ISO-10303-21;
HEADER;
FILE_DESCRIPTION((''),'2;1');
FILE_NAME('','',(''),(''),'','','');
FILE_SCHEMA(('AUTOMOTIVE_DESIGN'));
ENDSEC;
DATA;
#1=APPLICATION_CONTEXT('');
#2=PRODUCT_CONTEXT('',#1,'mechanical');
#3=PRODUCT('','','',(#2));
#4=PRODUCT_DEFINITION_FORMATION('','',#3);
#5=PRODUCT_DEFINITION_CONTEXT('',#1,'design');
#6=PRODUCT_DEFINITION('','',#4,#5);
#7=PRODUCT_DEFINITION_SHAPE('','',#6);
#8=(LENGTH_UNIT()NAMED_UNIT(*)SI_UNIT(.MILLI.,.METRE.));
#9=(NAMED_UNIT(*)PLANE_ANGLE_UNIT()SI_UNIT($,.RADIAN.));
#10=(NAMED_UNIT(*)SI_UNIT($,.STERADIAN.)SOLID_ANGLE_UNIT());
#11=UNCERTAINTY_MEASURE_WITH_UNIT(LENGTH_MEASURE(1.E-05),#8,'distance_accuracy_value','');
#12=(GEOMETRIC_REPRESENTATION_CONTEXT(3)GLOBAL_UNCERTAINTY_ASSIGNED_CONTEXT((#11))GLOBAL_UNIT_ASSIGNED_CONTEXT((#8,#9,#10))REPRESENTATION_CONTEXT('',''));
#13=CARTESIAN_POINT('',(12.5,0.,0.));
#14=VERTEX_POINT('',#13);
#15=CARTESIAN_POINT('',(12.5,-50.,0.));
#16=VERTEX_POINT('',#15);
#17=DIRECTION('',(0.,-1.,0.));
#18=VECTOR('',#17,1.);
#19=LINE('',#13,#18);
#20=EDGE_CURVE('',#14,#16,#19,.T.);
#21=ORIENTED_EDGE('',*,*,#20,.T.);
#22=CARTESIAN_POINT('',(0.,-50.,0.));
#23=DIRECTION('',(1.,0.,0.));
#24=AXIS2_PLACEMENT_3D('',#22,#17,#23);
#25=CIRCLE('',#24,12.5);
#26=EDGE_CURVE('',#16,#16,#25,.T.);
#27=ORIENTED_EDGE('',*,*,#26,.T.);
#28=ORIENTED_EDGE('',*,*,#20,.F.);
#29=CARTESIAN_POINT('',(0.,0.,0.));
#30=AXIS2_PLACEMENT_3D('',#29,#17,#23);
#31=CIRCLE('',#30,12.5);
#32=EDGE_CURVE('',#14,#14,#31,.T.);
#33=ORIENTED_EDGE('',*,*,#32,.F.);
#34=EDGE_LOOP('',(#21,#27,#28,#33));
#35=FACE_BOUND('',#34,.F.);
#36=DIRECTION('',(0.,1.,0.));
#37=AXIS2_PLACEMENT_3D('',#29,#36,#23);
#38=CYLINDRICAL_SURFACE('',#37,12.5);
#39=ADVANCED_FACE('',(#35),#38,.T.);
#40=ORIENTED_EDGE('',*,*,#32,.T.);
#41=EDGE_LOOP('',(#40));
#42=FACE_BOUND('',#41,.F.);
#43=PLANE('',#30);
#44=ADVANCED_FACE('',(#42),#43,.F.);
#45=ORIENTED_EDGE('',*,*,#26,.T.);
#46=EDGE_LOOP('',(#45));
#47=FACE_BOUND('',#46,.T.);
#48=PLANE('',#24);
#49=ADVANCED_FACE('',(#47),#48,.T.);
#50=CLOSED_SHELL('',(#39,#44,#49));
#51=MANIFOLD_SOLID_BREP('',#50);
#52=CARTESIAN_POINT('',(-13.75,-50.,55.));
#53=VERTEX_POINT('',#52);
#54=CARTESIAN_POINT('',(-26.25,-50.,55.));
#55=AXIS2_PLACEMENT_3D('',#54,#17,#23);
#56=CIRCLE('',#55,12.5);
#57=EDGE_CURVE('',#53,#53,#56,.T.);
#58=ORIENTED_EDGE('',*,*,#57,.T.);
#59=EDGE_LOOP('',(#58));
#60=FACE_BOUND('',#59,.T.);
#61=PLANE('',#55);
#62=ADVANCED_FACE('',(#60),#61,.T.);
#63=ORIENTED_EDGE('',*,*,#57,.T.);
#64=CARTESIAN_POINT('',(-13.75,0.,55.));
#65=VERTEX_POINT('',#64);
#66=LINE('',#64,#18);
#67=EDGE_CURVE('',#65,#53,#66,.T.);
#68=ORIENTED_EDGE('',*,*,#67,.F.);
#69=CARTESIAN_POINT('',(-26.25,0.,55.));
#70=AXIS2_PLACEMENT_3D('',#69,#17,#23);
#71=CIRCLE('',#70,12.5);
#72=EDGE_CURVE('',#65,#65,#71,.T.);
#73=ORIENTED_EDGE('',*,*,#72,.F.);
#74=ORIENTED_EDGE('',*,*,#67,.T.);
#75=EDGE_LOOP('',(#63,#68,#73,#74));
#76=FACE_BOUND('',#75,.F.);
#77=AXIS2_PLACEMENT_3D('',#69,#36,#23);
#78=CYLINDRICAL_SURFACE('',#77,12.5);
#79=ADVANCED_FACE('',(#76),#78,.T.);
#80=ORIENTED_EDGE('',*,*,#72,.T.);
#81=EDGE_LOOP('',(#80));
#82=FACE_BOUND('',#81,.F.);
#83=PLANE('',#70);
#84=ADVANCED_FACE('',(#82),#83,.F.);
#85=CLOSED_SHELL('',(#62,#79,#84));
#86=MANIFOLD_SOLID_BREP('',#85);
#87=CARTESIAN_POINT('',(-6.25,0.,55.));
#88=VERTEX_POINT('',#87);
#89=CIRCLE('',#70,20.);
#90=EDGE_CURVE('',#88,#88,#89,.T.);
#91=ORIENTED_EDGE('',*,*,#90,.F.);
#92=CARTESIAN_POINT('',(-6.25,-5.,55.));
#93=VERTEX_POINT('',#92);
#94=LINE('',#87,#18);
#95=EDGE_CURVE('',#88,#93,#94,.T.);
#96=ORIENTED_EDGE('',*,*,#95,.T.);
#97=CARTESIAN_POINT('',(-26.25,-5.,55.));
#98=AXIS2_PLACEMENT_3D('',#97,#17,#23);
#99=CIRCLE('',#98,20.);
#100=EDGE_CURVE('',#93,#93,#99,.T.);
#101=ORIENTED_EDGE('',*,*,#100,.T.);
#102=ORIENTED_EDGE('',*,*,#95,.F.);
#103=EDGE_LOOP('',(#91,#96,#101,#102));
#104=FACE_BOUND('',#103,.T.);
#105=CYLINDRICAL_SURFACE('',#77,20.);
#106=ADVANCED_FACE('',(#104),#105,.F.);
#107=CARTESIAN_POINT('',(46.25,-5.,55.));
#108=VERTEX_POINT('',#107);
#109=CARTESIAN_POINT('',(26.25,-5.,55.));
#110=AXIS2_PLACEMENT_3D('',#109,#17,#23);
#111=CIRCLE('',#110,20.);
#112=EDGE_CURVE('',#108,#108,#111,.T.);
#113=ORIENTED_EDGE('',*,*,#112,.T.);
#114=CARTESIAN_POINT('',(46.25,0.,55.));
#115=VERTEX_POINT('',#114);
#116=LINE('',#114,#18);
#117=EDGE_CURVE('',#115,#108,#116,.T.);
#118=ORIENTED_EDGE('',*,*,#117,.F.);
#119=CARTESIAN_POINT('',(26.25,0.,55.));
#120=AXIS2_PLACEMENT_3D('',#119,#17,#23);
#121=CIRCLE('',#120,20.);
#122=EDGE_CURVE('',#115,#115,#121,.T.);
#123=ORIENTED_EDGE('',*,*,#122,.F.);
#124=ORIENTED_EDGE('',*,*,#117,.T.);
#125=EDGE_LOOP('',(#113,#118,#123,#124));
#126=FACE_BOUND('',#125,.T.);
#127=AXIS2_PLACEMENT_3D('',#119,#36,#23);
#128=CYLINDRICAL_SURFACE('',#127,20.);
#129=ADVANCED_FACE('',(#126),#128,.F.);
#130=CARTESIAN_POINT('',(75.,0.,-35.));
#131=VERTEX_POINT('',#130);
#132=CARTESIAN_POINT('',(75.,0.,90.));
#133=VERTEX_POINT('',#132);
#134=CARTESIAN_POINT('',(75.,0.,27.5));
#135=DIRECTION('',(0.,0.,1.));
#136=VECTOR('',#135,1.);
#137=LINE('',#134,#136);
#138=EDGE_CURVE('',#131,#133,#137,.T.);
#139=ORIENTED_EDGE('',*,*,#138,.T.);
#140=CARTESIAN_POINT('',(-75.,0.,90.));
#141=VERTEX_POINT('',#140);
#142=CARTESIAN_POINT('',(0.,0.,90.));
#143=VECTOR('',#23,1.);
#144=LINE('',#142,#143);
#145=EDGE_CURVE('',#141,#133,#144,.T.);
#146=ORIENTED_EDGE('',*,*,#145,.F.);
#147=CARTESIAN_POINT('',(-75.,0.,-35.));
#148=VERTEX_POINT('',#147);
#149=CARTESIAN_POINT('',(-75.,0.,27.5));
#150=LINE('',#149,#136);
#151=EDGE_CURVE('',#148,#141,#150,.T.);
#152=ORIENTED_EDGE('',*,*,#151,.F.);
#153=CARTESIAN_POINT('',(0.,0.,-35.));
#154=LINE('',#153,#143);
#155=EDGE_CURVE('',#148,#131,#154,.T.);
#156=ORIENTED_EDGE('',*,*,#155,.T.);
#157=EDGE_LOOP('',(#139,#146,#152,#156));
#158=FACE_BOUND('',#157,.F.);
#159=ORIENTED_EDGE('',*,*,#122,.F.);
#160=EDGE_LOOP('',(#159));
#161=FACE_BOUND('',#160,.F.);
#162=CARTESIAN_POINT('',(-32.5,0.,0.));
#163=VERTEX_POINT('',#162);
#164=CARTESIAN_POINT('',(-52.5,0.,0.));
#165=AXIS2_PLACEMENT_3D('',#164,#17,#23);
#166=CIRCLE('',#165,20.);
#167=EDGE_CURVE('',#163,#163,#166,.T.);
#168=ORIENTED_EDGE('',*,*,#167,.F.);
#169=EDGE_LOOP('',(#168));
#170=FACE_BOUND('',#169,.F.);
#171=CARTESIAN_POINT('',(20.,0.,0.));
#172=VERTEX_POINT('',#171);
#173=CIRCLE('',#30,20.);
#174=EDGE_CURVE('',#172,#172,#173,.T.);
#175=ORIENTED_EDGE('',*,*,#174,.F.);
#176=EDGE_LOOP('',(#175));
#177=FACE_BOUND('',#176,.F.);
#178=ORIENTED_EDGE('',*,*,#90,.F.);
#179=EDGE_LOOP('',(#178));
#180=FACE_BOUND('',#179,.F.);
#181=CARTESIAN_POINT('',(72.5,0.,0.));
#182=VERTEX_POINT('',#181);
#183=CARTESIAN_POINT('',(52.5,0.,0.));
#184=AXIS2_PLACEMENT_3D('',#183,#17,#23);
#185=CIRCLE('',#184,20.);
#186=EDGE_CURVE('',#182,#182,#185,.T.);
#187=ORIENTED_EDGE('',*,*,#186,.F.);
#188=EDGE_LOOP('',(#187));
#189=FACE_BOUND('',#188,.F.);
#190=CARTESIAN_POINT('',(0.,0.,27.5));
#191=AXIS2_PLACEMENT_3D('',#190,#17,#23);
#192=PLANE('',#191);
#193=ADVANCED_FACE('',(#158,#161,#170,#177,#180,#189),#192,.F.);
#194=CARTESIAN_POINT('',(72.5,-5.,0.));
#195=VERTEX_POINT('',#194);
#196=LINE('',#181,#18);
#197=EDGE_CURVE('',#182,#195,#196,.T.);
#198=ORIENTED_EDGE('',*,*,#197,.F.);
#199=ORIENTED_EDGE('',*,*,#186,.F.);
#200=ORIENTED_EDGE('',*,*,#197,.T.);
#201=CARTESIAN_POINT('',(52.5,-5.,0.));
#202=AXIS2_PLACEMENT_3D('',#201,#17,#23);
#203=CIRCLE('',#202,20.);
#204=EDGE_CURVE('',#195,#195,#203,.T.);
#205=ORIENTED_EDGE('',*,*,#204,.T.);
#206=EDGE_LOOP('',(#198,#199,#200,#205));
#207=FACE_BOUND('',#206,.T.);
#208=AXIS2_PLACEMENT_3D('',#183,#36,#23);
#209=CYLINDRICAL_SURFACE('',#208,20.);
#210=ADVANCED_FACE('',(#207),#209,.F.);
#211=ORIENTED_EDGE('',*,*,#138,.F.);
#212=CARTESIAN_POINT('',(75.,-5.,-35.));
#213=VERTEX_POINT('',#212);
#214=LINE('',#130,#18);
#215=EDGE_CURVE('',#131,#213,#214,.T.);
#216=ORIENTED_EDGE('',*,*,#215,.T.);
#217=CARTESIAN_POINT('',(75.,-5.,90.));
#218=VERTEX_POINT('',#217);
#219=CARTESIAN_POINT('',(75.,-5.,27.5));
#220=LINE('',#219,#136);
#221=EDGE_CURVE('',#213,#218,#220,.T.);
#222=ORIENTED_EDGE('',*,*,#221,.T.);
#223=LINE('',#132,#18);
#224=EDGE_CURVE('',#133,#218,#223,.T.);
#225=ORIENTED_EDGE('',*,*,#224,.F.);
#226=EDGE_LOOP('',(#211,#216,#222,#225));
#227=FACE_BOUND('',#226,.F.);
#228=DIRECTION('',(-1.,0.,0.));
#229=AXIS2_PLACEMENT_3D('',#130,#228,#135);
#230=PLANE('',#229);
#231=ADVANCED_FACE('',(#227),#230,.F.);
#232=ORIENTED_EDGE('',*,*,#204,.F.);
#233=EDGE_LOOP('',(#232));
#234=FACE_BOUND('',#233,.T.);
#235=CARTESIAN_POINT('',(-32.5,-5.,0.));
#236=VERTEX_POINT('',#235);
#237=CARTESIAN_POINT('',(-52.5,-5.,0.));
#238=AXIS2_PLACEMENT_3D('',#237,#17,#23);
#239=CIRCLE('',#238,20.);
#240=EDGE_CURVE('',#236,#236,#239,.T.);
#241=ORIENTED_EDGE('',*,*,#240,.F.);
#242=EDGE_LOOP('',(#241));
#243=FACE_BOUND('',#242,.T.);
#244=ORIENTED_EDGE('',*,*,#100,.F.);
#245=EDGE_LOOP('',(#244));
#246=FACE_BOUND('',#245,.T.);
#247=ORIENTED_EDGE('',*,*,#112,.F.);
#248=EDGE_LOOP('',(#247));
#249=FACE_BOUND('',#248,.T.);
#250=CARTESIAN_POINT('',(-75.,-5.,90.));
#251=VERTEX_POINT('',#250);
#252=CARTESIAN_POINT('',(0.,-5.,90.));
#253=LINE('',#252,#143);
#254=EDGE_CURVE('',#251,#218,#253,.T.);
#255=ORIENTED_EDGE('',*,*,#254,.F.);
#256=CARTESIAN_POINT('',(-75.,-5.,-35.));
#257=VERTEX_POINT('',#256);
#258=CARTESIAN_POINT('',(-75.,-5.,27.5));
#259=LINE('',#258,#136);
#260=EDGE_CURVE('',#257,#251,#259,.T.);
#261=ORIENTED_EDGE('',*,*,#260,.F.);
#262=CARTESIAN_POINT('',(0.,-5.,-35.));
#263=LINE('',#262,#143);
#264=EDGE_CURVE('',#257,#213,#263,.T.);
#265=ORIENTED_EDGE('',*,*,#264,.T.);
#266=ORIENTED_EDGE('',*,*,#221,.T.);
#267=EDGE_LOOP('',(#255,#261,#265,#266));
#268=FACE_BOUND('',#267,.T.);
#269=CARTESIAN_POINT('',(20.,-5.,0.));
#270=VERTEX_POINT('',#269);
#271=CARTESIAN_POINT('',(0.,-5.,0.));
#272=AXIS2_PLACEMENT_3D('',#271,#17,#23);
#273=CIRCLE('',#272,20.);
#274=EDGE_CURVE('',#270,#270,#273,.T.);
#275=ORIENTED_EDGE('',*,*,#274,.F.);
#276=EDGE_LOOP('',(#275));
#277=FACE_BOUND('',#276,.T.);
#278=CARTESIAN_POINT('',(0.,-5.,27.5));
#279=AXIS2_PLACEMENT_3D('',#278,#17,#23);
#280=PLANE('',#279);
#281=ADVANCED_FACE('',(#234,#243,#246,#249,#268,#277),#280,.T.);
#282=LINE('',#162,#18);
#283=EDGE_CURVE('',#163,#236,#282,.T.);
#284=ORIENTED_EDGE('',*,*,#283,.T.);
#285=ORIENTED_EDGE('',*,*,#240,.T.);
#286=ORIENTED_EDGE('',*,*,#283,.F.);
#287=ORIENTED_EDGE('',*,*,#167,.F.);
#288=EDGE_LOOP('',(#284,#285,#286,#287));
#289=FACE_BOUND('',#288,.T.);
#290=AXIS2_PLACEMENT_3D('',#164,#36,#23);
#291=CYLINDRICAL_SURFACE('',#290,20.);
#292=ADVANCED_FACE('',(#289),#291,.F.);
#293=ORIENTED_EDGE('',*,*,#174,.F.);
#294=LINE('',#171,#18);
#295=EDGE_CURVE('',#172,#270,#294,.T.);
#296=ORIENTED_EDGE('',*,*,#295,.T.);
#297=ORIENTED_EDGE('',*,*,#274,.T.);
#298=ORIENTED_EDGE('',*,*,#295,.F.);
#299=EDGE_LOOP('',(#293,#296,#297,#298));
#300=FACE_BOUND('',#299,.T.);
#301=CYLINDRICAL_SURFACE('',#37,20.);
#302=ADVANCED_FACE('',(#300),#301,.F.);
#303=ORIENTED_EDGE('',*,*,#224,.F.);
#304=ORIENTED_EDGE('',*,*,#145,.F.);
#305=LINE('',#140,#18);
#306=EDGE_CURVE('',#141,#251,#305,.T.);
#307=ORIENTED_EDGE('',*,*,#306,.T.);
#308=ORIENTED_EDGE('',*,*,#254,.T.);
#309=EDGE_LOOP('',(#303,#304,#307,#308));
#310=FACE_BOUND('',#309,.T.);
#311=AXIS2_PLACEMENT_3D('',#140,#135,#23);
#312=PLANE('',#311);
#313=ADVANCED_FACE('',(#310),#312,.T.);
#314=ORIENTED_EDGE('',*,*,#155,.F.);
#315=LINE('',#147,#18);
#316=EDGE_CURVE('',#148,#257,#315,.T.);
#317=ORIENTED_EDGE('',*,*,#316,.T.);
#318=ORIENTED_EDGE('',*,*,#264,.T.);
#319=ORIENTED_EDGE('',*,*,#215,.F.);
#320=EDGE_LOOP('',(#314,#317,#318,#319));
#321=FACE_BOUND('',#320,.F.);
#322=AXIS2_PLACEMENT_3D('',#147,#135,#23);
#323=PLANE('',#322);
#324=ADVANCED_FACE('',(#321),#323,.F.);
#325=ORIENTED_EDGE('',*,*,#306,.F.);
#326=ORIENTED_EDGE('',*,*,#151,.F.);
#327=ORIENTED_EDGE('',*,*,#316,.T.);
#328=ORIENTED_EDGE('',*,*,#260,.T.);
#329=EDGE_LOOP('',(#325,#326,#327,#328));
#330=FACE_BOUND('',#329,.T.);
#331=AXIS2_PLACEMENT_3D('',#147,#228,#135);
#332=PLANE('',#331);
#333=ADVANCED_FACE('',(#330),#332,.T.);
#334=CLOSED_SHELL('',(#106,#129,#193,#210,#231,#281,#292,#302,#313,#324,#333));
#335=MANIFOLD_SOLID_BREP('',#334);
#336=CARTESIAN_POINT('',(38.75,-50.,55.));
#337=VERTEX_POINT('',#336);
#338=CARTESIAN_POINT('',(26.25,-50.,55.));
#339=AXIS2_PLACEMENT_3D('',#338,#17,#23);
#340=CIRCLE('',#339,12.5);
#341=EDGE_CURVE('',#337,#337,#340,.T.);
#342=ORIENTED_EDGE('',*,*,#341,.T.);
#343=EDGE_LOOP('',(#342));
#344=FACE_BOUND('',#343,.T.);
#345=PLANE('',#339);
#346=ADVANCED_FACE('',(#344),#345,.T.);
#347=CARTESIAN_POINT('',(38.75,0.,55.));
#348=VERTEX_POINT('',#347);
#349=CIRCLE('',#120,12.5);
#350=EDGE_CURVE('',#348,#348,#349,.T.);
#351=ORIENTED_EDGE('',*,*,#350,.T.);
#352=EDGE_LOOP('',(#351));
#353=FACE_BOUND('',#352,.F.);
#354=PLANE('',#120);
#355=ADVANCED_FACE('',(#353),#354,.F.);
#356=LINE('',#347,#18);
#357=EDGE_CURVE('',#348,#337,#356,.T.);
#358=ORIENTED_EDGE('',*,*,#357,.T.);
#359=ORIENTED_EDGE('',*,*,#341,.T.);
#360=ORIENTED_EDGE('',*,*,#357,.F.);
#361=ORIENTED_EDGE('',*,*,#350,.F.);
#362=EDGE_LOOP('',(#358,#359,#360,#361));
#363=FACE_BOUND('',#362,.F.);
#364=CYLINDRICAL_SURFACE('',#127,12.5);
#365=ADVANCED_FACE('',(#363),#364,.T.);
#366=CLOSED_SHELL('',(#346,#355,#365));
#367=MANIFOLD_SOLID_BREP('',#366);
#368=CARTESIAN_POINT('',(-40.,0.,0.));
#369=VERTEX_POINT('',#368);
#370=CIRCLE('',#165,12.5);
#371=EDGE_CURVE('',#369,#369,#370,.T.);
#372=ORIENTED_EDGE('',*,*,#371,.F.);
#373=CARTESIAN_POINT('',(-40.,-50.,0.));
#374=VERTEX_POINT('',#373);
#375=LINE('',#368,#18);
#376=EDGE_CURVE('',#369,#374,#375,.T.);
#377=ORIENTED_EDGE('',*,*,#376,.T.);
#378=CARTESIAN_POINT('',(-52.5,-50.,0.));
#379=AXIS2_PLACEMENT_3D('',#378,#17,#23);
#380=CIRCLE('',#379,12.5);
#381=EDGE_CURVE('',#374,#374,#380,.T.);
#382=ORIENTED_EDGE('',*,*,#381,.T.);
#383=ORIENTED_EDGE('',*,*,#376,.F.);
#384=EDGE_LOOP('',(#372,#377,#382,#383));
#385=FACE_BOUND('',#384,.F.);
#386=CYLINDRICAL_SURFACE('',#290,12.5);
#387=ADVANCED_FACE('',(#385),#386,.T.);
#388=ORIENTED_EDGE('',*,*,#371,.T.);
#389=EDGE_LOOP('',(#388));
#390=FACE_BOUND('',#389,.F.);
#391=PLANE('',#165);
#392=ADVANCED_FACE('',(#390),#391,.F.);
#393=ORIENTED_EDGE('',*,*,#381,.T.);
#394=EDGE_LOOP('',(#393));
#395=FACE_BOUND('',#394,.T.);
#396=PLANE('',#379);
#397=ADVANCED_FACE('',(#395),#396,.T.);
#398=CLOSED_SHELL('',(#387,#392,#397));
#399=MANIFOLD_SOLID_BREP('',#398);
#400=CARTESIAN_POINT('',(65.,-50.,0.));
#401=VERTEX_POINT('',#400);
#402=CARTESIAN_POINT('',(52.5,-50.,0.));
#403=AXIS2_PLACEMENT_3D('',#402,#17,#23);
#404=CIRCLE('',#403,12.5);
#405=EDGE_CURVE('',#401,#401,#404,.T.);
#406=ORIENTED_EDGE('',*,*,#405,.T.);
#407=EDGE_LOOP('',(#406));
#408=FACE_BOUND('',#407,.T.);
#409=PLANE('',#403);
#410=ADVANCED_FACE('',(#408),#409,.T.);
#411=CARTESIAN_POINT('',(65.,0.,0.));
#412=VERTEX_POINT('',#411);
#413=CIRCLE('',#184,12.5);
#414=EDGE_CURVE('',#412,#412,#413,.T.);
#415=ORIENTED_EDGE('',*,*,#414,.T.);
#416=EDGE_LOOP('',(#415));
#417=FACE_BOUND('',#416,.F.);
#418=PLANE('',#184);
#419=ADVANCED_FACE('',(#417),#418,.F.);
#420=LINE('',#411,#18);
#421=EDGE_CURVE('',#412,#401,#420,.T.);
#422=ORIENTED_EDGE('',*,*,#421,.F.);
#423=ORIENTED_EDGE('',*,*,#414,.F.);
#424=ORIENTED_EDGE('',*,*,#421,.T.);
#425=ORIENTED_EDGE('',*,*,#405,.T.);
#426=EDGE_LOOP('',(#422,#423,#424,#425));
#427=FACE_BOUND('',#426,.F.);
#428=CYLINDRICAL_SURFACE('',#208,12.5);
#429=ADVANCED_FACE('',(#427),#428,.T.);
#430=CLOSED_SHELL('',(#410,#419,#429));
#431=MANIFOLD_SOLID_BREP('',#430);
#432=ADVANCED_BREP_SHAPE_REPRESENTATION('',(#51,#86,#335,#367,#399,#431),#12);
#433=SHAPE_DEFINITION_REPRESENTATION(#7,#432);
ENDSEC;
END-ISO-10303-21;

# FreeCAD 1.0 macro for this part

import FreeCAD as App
import Part
import Sketcher
Q = App.Units.Quantity


def add_polygon(sketch, points):
    """Adds a closed chain of lines whose ends are joined by coincident constraints."""
    first, n = sketch.GeometryCount, len(points)
    for a, b in zip(points, points[1:] + points[:1]):
        sketch.addGeometry(Part.LineSegment(App.Vector(*a, 0), App.Vector(*b, 0)), False)
    for i in range(n):
        sketch.addConstraint(Sketcher.Constraint("Coincident", first + i, 2, first + (i + 1) % n, 1))

doc = App.newDocument("Part")
body = doc.addObject("PartDesign::Body", "Body")
body.AllowCompound = True

sketch1 = body.newObject("Sketcher::SketchObject", "Sketch")
sketch1.AttachmentSupport = (doc.getObject("XZ_Plane"), [""])
sketch1.MapMode = "FlatFace"
sketch1.addGeometry(Part.Circle(App.Vector(-26, 55, 0), App.Vector(0, 0, 1), 12), False)
sketch1.addGeometry(Part.Circle(App.Vector(26, 55, 0), App.Vector(0, 0, 1), 12), False)
sketch1.addGeometry(Part.Circle(App.Vector(-52, 0, 0), App.Vector(0, 0, 1), 12), False)
sketch1.addGeometry(Part.Circle(App.Vector(0, 0, 0), App.Vector(0, 0, 1), 12), False)
sketch1.addGeometry(Part.Circle(App.Vector(52, 0, 0), App.Vector(0, 0, 1), 12), False)
sketch1.addConstraint(Sketcher.Constraint("Coincident", 3, 3, -1, 1))
sketch1.addConstraint(Sketcher.Constraint("Equal", 0, 1))
sketch1.addConstraint(Sketcher.Constraint("Equal", 1, 2))
sketch1.addConstraint(Sketcher.Constraint("Equal", 2, 3))
sketch1.addConstraint(Sketcher.Constraint("Equal", 3, 4))
sketch1.addConstraint(Sketcher.Constraint("Symmetric", 2, 3, 4, 3, -1, 1))
sketch1.addConstraint(Sketcher.Constraint("Symmetric", 0, 3, 1, 3, -2))
sketch1.addConstraint(Sketcher.Constraint("PointOnObject", 2, 3, -1))
sketch1.addConstraint(Sketcher.Constraint("Diameter", 0, Q("25 mm")))
sketch1.addConstraint(Sketcher.Constraint("DistanceY", -1, 1, 0, 3, Q("55 mm")))
sketch1.addConstraint(Sketcher.Constraint("DistanceX", 2, 3, 4, 3, Q("105 mm")))
sketch1.addConstraint(Sketcher.Constraint("DistanceX", 0, 3, 1, 3, Q("52.5 mm")))
pad1 = body.newObject("PartDesign::Pad", "Pad")
pad1.Profile = sketch1
pad1.Length = 50
body2 = doc.addObject("PartDesign::Body", "Body001")

sketch2 = body2.newObject("Sketcher::SketchObject", "Sketch001")
sketch2.AttachmentSupport = (doc.getObject("XZ_Plane001"), [""])
sketch2.MapMode = "FlatFace"
add_polygon(sketch2, [(-75, 90), (-75, -35), (75, -35), (75, 90)])
sketch2.addGeometry(Part.Circle(App.Vector(-52, 0, 0), App.Vector(0, 0, 1), 20), False)
sketch2.addGeometry(Part.Circle(App.Vector(0, 0, 0), App.Vector(0, 0, 1), 20), False)
sketch2.addGeometry(Part.Circle(App.Vector(52, 0, 0), App.Vector(0, 0, 1), 20), False)
sketch2.addGeometry(Part.Circle(App.Vector(-26, 55, 0), App.Vector(0, 0, 1), 20), False)
sketch2.addGeometry(Part.Circle(App.Vector(26, 55, 0), App.Vector(0, 0, 1), 20), False)
sketch2.addConstraint(Sketcher.Constraint("Vertical", 0))
sketch2.addConstraint(Sketcher.Constraint("Horizontal", 1))
sketch2.addConstraint(Sketcher.Constraint("Vertical", 2))
sketch2.addConstraint(Sketcher.Constraint("Horizontal", 3))
sketch2.addConstraint(Sketcher.Constraint("Coincident", 5, 3, -1, 1))
sketch2.addConstraint(Sketcher.Constraint("Equal", 4, 5))
sketch2.addConstraint(Sketcher.Constraint("Equal", 5, 6))
sketch2.addConstraint(Sketcher.Constraint("Equal", 6, 7))
sketch2.addConstraint(Sketcher.Constraint("Equal", 7, 8))
sketch2.addConstraint(Sketcher.Constraint("Symmetric", 4, 3, 6, 3, -1, 1))
sketch2.addConstraint(Sketcher.Constraint("Symmetric", 7, 3, 8, 3, -2))
sketch2.addConstraint(Sketcher.Constraint("PointOnObject", 4, 3, -1))
sketch2.addConstraint(Sketcher.Constraint("Diameter", 4, Q("40 mm")))
sketch2.addConstraint(Sketcher.Constraint("DistanceX", 1, 1, 1, 2, Q("150 mm")))
sketch2.addConstraint(Sketcher.Constraint("DistanceY", 0, 2, 0, 1, Q("125 mm")))
sketch2.addConstraint(Sketcher.Constraint("DistanceY", -1, 1, 7, 3, Q("55 mm")))
sketch2.addConstraint(Sketcher.Constraint("DistanceX", 0, 2, -1, 1, Q("75 mm")))
sketch2.addConstraint(Sketcher.Constraint("DistanceY", 0, 2, -1, 1, Q("35 mm")))
sketch2.addConstraint(Sketcher.Constraint("DistanceX", 4, 3, 6, 3, Q("105 mm")))
sketch2.addConstraint(Sketcher.Constraint("DistanceX", 7, 3, 8, 3, Q("52.5 mm")))
pad2 = body2.newObject("PartDesign::Pad", "Pad001")
pad2.Profile = sketch2
pad2.Length = 5

doc.recompute()
